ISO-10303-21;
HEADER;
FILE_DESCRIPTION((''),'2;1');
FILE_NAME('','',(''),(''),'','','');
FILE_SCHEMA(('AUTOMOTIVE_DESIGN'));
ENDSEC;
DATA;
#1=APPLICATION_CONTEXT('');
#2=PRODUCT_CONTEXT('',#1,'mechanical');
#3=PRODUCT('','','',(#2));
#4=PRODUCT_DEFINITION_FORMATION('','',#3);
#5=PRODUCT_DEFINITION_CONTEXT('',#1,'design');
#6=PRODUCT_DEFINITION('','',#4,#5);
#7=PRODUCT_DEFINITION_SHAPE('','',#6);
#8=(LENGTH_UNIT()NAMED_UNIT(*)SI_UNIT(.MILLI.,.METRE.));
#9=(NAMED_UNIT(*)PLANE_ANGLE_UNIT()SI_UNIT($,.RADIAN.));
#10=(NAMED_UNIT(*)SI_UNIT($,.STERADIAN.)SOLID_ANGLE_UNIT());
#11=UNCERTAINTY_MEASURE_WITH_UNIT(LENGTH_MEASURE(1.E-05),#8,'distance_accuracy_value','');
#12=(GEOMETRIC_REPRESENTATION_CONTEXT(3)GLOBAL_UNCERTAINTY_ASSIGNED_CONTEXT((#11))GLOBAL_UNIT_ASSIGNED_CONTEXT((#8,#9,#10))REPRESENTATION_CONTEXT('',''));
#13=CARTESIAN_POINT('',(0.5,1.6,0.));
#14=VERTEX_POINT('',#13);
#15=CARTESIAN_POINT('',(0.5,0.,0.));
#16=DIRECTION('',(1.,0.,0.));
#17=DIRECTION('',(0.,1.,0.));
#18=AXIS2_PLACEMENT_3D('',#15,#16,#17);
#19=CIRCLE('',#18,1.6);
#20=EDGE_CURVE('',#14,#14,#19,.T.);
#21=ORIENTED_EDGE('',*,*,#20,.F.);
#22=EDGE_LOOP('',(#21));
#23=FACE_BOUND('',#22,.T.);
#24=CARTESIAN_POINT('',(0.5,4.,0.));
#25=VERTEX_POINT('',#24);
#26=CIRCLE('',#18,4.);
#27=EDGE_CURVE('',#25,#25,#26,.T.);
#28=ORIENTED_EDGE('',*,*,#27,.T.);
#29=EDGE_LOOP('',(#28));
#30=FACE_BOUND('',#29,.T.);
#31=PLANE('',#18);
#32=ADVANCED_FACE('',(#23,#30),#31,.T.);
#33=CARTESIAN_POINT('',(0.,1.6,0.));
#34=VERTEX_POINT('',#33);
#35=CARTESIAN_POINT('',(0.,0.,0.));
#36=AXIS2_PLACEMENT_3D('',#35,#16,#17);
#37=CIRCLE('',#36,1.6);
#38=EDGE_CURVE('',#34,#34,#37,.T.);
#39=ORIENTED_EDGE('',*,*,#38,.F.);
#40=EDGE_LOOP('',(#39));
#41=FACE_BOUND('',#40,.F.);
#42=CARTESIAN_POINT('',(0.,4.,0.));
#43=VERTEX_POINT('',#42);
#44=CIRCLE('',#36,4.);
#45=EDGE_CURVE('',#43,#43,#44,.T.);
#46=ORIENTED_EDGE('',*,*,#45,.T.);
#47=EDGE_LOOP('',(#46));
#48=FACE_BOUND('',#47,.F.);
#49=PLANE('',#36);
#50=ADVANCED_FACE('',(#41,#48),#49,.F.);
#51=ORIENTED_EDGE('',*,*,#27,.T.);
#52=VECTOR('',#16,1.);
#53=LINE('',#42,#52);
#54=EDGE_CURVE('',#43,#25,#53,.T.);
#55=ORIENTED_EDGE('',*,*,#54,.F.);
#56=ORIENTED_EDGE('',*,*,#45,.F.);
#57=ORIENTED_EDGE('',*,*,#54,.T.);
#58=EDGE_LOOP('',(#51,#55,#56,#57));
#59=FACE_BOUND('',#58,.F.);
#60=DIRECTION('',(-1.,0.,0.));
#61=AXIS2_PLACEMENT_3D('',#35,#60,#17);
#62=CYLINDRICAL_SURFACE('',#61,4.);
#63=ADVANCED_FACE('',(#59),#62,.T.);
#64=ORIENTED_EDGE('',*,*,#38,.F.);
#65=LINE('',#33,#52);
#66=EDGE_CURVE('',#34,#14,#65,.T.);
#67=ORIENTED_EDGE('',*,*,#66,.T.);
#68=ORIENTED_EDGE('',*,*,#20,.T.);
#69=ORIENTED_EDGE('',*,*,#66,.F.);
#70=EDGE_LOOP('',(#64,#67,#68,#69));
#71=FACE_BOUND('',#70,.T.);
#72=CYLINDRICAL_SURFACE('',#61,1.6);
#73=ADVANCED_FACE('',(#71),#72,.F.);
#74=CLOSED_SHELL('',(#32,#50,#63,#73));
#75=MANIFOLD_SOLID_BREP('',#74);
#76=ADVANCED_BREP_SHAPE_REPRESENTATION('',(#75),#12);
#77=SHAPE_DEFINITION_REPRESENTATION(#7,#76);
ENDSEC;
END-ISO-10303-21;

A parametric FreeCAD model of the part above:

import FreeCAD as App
import Part
import Sketcher

V = App.Vector

doc = App.newDocument("Part")
body = doc.addObject("PartDesign::Body", "Body")

sketch1 = body.newObject("Sketcher::SketchObject", "Sketch")
sketch1.AttachmentSupport = (doc.getObject("YZ_Plane"), [""])
sketch1.MapMode = "FlatFace"
sketch1.addGeometry(Part.Circle(V(0, 0, 0), V(0, 0, 1), 4), False)
sketch1.addGeometry(Part.Circle(V(0, 0, 0), V(0, 0, 1), 1.6), False)
sketch1.addConstraint(Sketcher.Constraint("Coincident", 0, 3, -1, 1))
sketch1.addConstraint(Sketcher.Constraint("Coincident", 1, 3, -1, 1))
sketch1.addConstraint(Sketcher.Constraint("Diameter", 0, 8.0))
sketch1.addConstraint(Sketcher.Constraint("Diameter", 1, 3.2))
pad1 = body.newObject("PartDesign::Pad", "Pad")
pad1.Profile = sketch1
pad1.Length = 0.5

doc.recompute()
